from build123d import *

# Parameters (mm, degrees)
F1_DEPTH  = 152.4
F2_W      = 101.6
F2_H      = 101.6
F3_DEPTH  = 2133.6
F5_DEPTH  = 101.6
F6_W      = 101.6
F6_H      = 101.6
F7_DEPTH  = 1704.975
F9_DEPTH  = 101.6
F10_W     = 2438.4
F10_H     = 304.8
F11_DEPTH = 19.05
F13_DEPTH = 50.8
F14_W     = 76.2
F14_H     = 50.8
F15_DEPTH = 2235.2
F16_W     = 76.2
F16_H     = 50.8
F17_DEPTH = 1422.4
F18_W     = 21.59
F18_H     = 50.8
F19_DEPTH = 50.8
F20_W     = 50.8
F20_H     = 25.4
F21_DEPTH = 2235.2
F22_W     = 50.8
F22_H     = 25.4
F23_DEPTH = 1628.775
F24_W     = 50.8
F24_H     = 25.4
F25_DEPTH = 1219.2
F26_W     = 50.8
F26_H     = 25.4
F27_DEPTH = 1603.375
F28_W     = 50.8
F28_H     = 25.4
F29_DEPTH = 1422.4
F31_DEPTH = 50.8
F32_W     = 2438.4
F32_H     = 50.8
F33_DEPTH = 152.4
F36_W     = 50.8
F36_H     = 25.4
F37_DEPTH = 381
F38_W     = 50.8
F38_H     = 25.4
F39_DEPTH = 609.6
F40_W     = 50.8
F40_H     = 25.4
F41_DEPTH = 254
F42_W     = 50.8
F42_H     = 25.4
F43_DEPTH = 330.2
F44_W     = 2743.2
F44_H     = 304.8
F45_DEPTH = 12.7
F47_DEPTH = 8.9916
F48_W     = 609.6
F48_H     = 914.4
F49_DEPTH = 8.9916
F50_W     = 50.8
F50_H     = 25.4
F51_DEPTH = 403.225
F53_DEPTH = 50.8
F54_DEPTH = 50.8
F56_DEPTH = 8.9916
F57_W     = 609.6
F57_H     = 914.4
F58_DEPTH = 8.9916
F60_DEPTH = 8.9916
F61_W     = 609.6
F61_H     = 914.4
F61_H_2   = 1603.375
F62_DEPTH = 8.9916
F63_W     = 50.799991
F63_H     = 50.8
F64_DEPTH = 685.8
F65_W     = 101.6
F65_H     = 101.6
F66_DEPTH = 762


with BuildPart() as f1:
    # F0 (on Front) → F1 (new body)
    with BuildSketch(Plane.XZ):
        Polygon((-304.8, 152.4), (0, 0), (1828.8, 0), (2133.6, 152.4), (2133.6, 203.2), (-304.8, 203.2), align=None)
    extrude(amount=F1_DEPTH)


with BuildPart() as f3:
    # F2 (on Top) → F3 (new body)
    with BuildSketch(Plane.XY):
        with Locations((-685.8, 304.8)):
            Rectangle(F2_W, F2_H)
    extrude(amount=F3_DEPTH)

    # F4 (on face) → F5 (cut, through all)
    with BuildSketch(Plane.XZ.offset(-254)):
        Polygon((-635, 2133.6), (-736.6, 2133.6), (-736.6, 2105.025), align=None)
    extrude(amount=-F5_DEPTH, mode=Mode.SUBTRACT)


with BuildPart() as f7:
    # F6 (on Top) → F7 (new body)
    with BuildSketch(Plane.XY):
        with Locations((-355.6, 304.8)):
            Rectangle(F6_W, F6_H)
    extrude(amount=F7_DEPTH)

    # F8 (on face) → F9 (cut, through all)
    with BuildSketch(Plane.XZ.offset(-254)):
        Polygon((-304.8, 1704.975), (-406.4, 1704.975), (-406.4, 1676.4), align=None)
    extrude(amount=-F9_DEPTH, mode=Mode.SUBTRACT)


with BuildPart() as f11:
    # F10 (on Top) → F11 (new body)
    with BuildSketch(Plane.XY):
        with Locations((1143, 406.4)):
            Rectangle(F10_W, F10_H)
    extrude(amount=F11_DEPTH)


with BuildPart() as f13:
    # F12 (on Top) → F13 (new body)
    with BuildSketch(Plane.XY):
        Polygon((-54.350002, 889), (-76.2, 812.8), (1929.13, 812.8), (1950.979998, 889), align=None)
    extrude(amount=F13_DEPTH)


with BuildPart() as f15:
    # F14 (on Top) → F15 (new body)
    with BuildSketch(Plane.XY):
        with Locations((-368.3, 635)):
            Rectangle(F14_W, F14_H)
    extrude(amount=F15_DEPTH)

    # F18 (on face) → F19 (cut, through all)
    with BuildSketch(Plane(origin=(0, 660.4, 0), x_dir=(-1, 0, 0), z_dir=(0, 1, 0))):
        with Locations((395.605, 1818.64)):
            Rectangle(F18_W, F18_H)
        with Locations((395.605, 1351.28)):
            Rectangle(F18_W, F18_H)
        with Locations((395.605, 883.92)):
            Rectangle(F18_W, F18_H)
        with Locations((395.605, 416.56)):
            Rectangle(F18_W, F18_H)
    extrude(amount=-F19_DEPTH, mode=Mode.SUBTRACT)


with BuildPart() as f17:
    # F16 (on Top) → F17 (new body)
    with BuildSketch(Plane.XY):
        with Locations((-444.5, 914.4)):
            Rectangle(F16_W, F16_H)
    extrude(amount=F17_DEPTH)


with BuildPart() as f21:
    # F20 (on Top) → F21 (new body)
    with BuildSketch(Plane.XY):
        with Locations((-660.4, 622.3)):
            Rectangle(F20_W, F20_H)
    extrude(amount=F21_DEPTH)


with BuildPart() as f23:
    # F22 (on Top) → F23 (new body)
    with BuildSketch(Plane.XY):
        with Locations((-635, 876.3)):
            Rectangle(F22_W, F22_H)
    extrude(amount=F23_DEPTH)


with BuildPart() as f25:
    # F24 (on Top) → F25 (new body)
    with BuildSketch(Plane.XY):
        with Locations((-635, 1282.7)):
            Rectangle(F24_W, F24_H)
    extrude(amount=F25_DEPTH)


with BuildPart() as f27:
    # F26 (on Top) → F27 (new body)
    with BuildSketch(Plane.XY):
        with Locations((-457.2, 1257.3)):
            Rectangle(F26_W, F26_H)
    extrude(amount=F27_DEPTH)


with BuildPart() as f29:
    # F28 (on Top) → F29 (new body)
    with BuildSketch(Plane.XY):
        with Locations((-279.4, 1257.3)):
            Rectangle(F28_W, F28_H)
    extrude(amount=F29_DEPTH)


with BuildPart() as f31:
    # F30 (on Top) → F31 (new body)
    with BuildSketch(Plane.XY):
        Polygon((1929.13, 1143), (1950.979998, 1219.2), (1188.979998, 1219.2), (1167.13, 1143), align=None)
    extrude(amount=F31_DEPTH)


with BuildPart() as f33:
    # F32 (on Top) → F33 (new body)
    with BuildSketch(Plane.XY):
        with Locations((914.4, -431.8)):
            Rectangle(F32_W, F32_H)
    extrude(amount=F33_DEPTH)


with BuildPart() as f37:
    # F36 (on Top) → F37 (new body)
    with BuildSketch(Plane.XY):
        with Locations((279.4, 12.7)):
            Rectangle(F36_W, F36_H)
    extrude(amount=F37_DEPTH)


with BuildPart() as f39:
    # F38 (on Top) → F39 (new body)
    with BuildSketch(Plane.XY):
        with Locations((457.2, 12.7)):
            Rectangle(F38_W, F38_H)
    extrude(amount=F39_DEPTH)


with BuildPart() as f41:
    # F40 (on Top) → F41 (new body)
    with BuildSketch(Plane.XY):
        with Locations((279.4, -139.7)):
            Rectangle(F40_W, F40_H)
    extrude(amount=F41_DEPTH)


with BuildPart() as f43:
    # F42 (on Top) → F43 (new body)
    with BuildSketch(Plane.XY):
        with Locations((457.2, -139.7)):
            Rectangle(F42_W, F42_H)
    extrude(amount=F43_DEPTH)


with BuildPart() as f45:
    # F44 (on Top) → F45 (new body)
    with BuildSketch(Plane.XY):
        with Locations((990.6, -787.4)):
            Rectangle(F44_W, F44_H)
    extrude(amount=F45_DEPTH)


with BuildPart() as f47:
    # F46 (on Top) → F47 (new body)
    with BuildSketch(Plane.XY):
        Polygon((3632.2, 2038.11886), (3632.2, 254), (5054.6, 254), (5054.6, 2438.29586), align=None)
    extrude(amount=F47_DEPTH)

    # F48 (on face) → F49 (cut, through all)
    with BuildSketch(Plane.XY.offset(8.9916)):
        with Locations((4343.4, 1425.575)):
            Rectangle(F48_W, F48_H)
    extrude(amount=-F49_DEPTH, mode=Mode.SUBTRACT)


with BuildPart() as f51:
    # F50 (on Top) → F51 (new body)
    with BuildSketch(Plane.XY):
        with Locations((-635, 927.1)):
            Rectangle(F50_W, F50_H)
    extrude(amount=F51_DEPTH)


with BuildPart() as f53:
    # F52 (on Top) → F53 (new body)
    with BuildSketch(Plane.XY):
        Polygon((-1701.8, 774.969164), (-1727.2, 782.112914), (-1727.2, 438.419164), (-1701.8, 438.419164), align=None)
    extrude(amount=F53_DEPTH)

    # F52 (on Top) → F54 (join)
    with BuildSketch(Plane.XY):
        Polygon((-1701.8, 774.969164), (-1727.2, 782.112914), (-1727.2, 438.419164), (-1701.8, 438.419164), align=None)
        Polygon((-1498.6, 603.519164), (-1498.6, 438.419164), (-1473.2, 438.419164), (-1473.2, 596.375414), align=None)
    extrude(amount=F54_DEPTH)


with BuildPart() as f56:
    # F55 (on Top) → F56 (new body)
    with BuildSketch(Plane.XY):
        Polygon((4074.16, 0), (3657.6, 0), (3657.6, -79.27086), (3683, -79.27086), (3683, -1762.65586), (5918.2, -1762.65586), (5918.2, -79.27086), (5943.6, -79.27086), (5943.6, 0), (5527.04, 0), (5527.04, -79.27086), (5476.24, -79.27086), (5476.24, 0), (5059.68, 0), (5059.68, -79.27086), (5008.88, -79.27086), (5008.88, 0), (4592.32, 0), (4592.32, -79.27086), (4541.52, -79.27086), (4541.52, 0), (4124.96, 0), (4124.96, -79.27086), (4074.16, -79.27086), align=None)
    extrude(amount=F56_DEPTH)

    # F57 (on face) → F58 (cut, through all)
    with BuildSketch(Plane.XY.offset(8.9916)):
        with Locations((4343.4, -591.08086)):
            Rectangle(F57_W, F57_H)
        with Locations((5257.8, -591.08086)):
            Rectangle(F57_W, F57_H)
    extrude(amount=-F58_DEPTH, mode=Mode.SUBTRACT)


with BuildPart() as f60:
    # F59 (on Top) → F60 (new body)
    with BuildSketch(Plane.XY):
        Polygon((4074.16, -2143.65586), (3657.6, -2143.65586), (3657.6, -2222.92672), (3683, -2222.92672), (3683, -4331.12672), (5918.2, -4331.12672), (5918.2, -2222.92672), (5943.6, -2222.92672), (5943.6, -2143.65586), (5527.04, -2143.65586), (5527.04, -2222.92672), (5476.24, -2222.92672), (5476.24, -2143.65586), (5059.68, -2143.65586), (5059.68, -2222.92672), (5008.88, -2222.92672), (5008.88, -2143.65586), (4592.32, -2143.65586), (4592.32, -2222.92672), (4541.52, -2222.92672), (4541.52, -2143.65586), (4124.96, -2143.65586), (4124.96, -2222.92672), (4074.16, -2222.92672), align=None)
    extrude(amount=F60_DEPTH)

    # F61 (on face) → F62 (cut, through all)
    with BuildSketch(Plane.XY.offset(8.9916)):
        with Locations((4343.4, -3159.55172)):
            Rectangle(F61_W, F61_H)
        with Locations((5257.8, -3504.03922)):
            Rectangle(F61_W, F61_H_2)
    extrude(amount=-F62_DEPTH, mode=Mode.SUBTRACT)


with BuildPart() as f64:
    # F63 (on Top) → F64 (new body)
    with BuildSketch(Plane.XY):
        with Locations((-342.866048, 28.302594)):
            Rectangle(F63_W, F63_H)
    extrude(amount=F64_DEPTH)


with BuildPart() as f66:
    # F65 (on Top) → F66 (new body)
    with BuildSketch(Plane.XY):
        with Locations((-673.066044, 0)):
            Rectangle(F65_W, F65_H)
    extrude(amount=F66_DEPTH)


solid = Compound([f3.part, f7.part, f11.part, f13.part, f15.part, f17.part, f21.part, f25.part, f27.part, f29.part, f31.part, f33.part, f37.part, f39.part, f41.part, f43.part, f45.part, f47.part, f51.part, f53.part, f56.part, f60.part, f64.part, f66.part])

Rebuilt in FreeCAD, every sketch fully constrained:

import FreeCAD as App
import Part
import Sketcher
from FreeCAD import Vector
Q = App.Units.Quantity


def add_polygon(sketch, points):
    """Adds a closed chain of lines whose ends are joined by coincident constraints."""
    first, n = sketch.GeometryCount, len(points)
    for a, b in zip(points, points[1:] + points[:1]):
        sketch.addGeometry(Part.LineSegment(App.Vector(*a, 0), App.Vector(*b, 0)), False)
    for i in range(n):
        sketch.addConstraint(Sketcher.Constraint("Coincident", first + i, 2, first + (i + 1) % n, 1))

doc = App.newDocument("Part")
params = doc.addObject("Spreadsheet::Sheet", "Params")
for row, (alias, value) in enumerate([
    ("sketch1_width", "72 in"),
    ("sketch1_width2", "96 in"),
    ("sketch1_height", "2 in"),
    ("pad1_length", "6 in"),
    ("sketch2_width", "4 in"),
    ("pad2_length", "84 in"),
    ("sketch3_width", "4 in"),
    ("sketch3_height", "1.125 in"),
    ("sketch4_width", "4 in"),
    ("pad3_length", "67.125 in"),
    ("sketch5_width", "4 in"),
    ("sketch5_height", "1.125 in"),
    ("sketch6_width", "96 in"),
    ("sketch6_height", "12 in"),
    ("pad4_length", "0.75 in"),
    ("sketch7_width", "78.95 in"),
    ("pad5_length", "2 in"),
    ("sketch8_width", "3 in"),
    ("sketch8_height", "2 in"),
    ("pad6_length", "88 in"),
    ("sketch9_height", "2 in"),
    ("sketch9_width", "0.85 in"),
    ("sketch10_width", "3 in"),
    ("sketch10_height", "2 in"),
    ("pad7_length", "56 in"),
    ("sketch11_width", "2 in"),
    ("sketch11_height", "1 in"),
    ("pad8_length", "88 in"),
    ("sketch12_width", "2 in"),
    ("sketch12_height", "1 in"),
    ("pad9_length", "64.125 in"),
    ("sketch13_width", "2 in"),
    ("sketch13_height", "1 in"),
    ("pad10_length", "48 in"),
    ("sketch14_width", "2 in"),
    ("sketch14_height", "1 in"),
    ("pad11_length", "63.125 in"),
    ("sketch15_width", "2 in"),
    ("sketch15_height", "1 in"),
    ("pad12_length", "56 in"),
    ("sketch16_width", "30 in"),
    ("pad13_length", "2 in"),
    ("sketch17_width", "96 in"),
    ("sketch17_height", "2 in"),
    ("pad14_length", "6 in"),
    ("sketch18_width", "2 in"),
    ("sketch18_height", "1 in"),
    ("pad15_length", "15 in"),
    ("sketch19_width", "2 in"),
    ("sketch19_height", "1 in"),
    ("pad16_length", "24 in"),
    ("sketch20_width", "2 in"),
    ("sketch20_height", "1 in"),
    ("pad17_length", "10 in"),
    ("sketch21_width", "2 in"),
    ("sketch21_height", "1 in"),
    ("pad18_length", "13 in"),
    ("sketch22_width", "108 in"),
    ("sketch22_height", "12 in"),
    ("pad19_length", "0.5 in"),
    ("sketch23_width", "56 in"),
    ("pad20_length", "0.354 in"),
    ("sketch24_width", "24 in"),
    ("sketch24_height", "36 in"),
    ("sketch25_width", "2 in"),
    ("sketch25_height", "1 in"),
    ("pad21_length", "15.875 in"),
    ("sketch26_width", "1 in"),
    ("sketch26_height", "13.25 in"),
    ("sketch26_height2", "13.53125 in"),
    ("pad22_length", "2 in"),
    ("sketch27_width", "1 in"),
    ("sketch27_height", "6.5 in"),
    ("sketch27_height2", "13.25 in"),
    ("sketch27_height3", "13.53125 in"),
    ("pad23_length", "2 in"),
    ("sketch28_width", "1 in"),
    ("sketch28_width2", "88 in"),
    ("sketch28_width3", "2 in"),
    ("sketch28_height", "66.275 in"),
    ("pad24_length", "0.354 in"),
    ("sketch29_width", "24 in"),
    ("sketch29_height", "36 in"),
    ("sketch30_width", "1 in"),
    ("sketch30_width2", "88 in"),
    ("sketch30_width3", "2 in"),
    ("sketch30_height", "83 in"),
    ("pad25_length", "0.354 in"),
    ("sketch31_width", "24 in"),
    ("sketch31_height", "36 in"),
    ("sketch31_height2", "63.125 in"),
    ("sketch32_height", "2 in"),
    ("pad26_length", "27 in"),
    ("sketch33_width", "4 in"),
    ("pad27_length", "30 in"),
], start=1):
    params.set(f"A{row}", alias)
    params.set(f"B{row}", "=" + value)
    params.setAlias(f"B{row}", alias)

body = doc.addObject("PartDesign::Body", "Body")

# Sketch on XZ plane
sketch1 = doc.addObject("Sketcher::SketchObject", "Sketch")
body.addObject(sketch1)
sketch1.AttachmentSupport = (doc.XZ_Plane, [""])
sketch1.MapMode = "FlatFace"
add_polygon(sketch1, [(-304.8, 152.4), (0, 0), (1828.8, 0), (2133.6, 152.4), (2133.6, 203.2), (-304.8, 203.2)])  # lines 0-5
sketch1.addConstraint([
    Sketcher.Constraint("Horizontal", 1),
    Sketcher.Constraint("Vertical", 3),
    Sketcher.Constraint("Horizontal", 4),
    Sketcher.Constraint("Vertical", 5),
    Sketcher.Constraint("Coincident", 0, 2, -1, 1),
    Sketcher.Constraint("Horizontal", 2, 2, 5, 2),
    Sketcher.Constraint("Equal", 0, 2),
    Sketcher.Constraint("DistanceX", 1, 1, 1, 2, Q("72 in")),
    Sketcher.Constraint("DistanceX", 4, 2, 4, 1, Q("96 in")),
    Sketcher.Constraint("DistanceY", 3, 1, 3, 2, Q("2 in")),
    Sketcher.Constraint("DistanceY", -1, 1, 2, 2, Q("6 in")),
])
sketch1.setExpression("Constraints[13]", "Params.sketch1_width")
sketch1.setExpression("Constraints[14]", "Params.sketch1_width2")
sketch1.setExpression("Constraints[15]", "Params.sketch1_height")
pad1 = doc.addObject("PartDesign::Pad", "Pad")
body.addObject(pad1)
pad1.Profile = sketch1
pad1.setExpression("Length", "Params.pad1_length")
body2 = doc.addObject("PartDesign::Body", "Body001")

# Sketch on XY plane
sketch2 = doc.addObject("Sketcher::SketchObject", "Sketch001")
body2.addObject(sketch2)
sketch2.AttachmentSupport = (doc.getObject("XY_Plane001"), [""])
sketch2.MapMode = "FlatFace"
add_polygon(sketch2, [(-736.6, 355.6), (-736.6, 254), (-635, 254), (-635, 355.6)])  # lines 0-3
sketch2.addConstraint([
    Sketcher.Constraint("Vertical", 0),
    Sketcher.Constraint("Horizontal", 1),
    Sketcher.Constraint("Vertical", 2),
    Sketcher.Constraint("Horizontal", 3),
    Sketcher.Constraint("Equal", 3, 0),
    Sketcher.Constraint("DistanceX", 1, 1, 1, 2, Q("4 in")),
    Sketcher.Constraint("DistanceX", 0, 2, -1, 1, Q("29 in")),
    Sketcher.Constraint("DistanceY", -1, 1, 0, 2, Q("10 in")),
])
sketch2.setExpression("Constraints[9]", "Params.sketch2_width")
pad2 = doc.addObject("PartDesign::Pad", "Pad001")
body2.addObject(pad2)
pad2.Profile = sketch2
pad2.setExpression("Length", "Params.pad2_length")

# Sketch on XZ plane
sketch3 = doc.addObject("Sketcher::SketchObject", "Sketch002")
body2.addObject(sketch3)
sketch3.AttachmentSupport = (doc.getObject("XZ_Plane001"), [""])
sketch3.MapMode = "FlatFace"
sketch3.AttachmentOffset = App.Placement(Vector(0, 0, -10 * 25.4), App.Rotation())
add_polygon(sketch3, [(-635, 2133.6), (-736.6, 2133.6), (-736.6, 2105.025)])  # lines 0-2
sketch3.addConstraint([
    Sketcher.Constraint("Horizontal", 0),
    Sketcher.Constraint("Vertical", 1),
    Sketcher.Constraint("DistanceX", 0, 2, 0, 1, Q("4 in")),
    Sketcher.Constraint("DistanceX", 0, 2, -1, 1, Q("29 in")),
    Sketcher.Constraint("DistanceY", -1, 1, 0, 2, Q("84 in")),
    Sketcher.Constraint("DistanceY", 1, 2, 1, 1, Q("1.125 in")),
])
sketch3.setExpression("Constraints[5]", "Params.sketch3_width")
sketch3.setExpression("Constraints[8]", "Params.sketch3_height")
pocket1 = doc.addObject("PartDesign::Pocket", "Pocket")
body2.addObject(pocket1)
pocket1.Profile = sketch3
pocket1.Type = "ThroughAll"
body3 = doc.addObject("PartDesign::Body", "Body002")

# Sketch on XY plane
sketch4 = doc.addObject("Sketcher::SketchObject", "Sketch003")
body3.addObject(sketch4)
sketch4.AttachmentSupport = (doc.getObject("XY_Plane002"), [""])
sketch4.MapMode = "FlatFace"
add_polygon(sketch4, [(-406.4, 355.6), (-406.4, 254), (-304.8, 254), (-304.8, 355.6)])  # lines 0-3
sketch4.addConstraint([
    Sketcher.Constraint("Vertical", 0),
    Sketcher.Constraint("Horizontal", 1),
    Sketcher.Constraint("Vertical", 2),
    Sketcher.Constraint("Horizontal", 3),
    Sketcher.Constraint("Equal", 3, 0),
    Sketcher.Constraint("DistanceX", 1, 1, 1, 2, Q("4 in")),
    Sketcher.Constraint("DistanceX", 0, 2, -1, 1, Q("16 in")),
    Sketcher.Constraint("DistanceY", -1, 1, 0, 2, Q("10 in")),
])
sketch4.setExpression("Constraints[9]", "Params.sketch4_width")
pad3 = doc.addObject("PartDesign::Pad", "Pad002")
body3.addObject(pad3)
pad3.Profile = sketch4
pad3.setExpression("Length", "Params.pad3_length")

# Sketch on XZ plane
sketch5 = doc.addObject("Sketcher::SketchObject", "Sketch004")
body3.addObject(sketch5)
sketch5.AttachmentSupport = (doc.getObject("XZ_Plane002"), [""])
sketch5.MapMode = "FlatFace"
sketch5.AttachmentOffset = App.Placement(Vector(0, 0, -10 * 25.4), App.Rotation())
add_polygon(sketch5, [(-304.8, 1704.975), (-406.4, 1704.975), (-406.4, 1676.4)])  # lines 0-2
sketch5.addConstraint([
    Sketcher.Constraint("Horizontal", 0),
    Sketcher.Constraint("Vertical", 1),
    Sketcher.Constraint("DistanceX", 0, 2, 0, 1, Q("4 in")),
    Sketcher.Constraint("DistanceX", 0, 2, -1, 1, Q("16 in")),
    Sketcher.Constraint("DistanceY", -1, 1, 1, 2, Q("66 in")),
    Sketcher.Constraint("DistanceY", 1, 2, 1, 1, Q("1.125 in")),
])
sketch5.setExpression("Constraints[5]", "Params.sketch5_width")
sketch5.setExpression("Constraints[8]", "Params.sketch5_height")
pocket2 = doc.addObject("PartDesign::Pocket", "Pocket001")
body3.addObject(pocket2)
pocket2.Profile = sketch5
pocket2.Type = "ThroughAll"
body4 = doc.addObject("PartDesign::Body", "Body003")

# Sketch on XY plane
sketch6 = doc.addObject("Sketcher::SketchObject", "Sketch005")
body4.addObject(sketch6)
sketch6.AttachmentSupport = (doc.getObject("XY_Plane003"), [""])
sketch6.MapMode = "FlatFace"
add_polygon(sketch6, [(-76.2, 558.8), (-76.2, 254), (2362.2, 254), (2362.2, 558.8)])  # lines 0-3
sketch6.addConstraint([
    Sketcher.Constraint("Vertical", 0),
    Sketcher.Constraint("Horizontal", 1),
    Sketcher.Constraint("Vertical", 2),
    Sketcher.Constraint("Horizontal", 3),
    Sketcher.Constraint("DistanceX", 1, 1, 1, 2, Q("96 in")),
    Sketcher.Constraint("DistanceY", 0, 2, 0, 1, Q("12 in")),
    Sketcher.Constraint("DistanceX", 0, 2, -1, 1, Q("3 in")),
    Sketcher.Constraint("DistanceY", -1, 1, 0, 2, Q("10 in")),
])
sketch6.setExpression("Constraints[8]", "Params.sketch6_width")
sketch6.setExpression("Constraints[9]", "Params.sketch6_height")
pad4 = doc.addObject("PartDesign::Pad", "Pad003")
body4.addObject(pad4)
pad4.Profile = sketch6
pad4.setExpression("Length", "Params.pad4_length")
body5 = doc.addObject("PartDesign::Body", "Body004")

# Sketch on XY plane
sketch7 = doc.addObject("Sketcher::SketchObject", "Sketch006")
body5.addObject(sketch7)
sketch7.AttachmentSupport = (doc.getObject("XY_Plane004"), [""])
sketch7.MapMode = "FlatFace"
add_polygon(sketch7, [(-54.350002, 889), (-76.2, 812.8), (1929.13, 812.8), (1950.979998, 889)])  # lines 0-3
sketch7.addConstraint([
    Sketcher.Constraint("Horizontal", 1),
    Sketcher.Constraint("Horizontal", 3),
    Sketcher.Constraint("Parallel", 0, 2),
    Sketcher.Constraint("DistanceX", 0, 2, -1, 1, Q("3 in")),
    Sketcher.Constraint("DistanceY", -1, 1, 0, 2, Q("32 in")),
    Sketcher.Constraint("DistanceY", -1, 1, 2, 2, Q("35 in")),
    Sketcher.Constraint("Angle", 0, Q("-106 deg")),
    Sketcher.Constraint("DistanceX", 1, 1, 1, 2, Q("78.95 in")),
])
sketch7.setExpression("Constraints[11]", "Params.sketch7_width")
pad5 = doc.addObject("PartDesign::Pad", "Pad004")
body5.addObject(pad5)
pad5.Profile = sketch7
pad5.setExpression("Length", "Params.pad5_length")
body6 = doc.addObject("PartDesign::Body", "Body005")

# Sketch on XY plane
sketch8 = doc.addObject("Sketcher::SketchObject", "Sketch007")
body6.addObject(sketch8)
sketch8.AttachmentSupport = (doc.getObject("XY_Plane005"), [""])
sketch8.MapMode = "FlatFace"
add_polygon(sketch8, [(-406.4, 660.4), (-406.4, 609.6), (-330.2, 609.6), (-330.2, 660.4)])  # lines 0-3
sketch8.addConstraint([
    Sketcher.Constraint("Vertical", 0),
    Sketcher.Constraint("Horizontal", 1),
    Sketcher.Constraint("Vertical", 2),
    Sketcher.Constraint("Horizontal", 3),
    Sketcher.Constraint("DistanceX", 1, 1, 1, 2, Q("3 in")),
    Sketcher.Constraint("DistanceY", 0, 2, 0, 1, Q("2 in")),
    Sketcher.Constraint("DistanceX", 0, 2, -1, 1, Q("16 in")),
    Sketcher.Constraint("DistanceY", -1, 1, 0, 2, Q("24 in")),
])
sketch8.setExpression("Constraints[8]", "Params.sketch8_width")
sketch8.setExpression("Constraints[9]", "Params.sketch8_height")
pad6 = doc.addObject("PartDesign::Pad", "Pad005")
body6.addObject(pad6)
pad6.Profile = sketch8
pad6.setExpression("Length", "Params.pad6_length")

# Sketch on XZ plane
sketch9 = doc.addObject("Sketcher::SketchObject", "Sketch008")
body6.addObject(sketch9)
sketch9.AttachmentSupport = (doc.getObject("XZ_Plane005"), [""])
sketch9.MapMode = "FlatFace"
sketch9.AttachmentOffset = App.Placement(Vector(0, 0, -26 * 25.4), App.Rotation())
add_polygon(sketch9, [(-384.81, 1844.04), (-384.81, 1793.24), (-406.4, 1793.24), (-406.4, 1844.04)])  # lines 0-3
add_polygon(sketch9, [(-384.81, 1376.68), (-384.81, 1325.88), (-406.4, 1325.88), (-406.4, 1376.68)])  # lines 4-7
add_polygon(sketch9, [(-384.81, 909.32), (-384.81, 858.52), (-406.4, 858.52), (-406.4, 909.32)])  # lines 8-11
add_polygon(sketch9, [(-384.81, 441.96), (-384.81, 391.16), (-406.4, 391.16), (-406.4, 441.96)])  # lines 12-15
sketch9.addConstraint([
    Sketcher.Constraint("Vertical", 0),
    Sketcher.Constraint("Horizontal", 1),
    Sketcher.Constraint("Vertical", 2),
    Sketcher.Constraint("Horizontal", 3),
    Sketcher.Constraint("Vertical", 4),
    Sketcher.Constraint("Horizontal", 5),
    Sketcher.Constraint("Vertical", 6),
    Sketcher.Constraint("Horizontal", 7),
    Sketcher.Constraint("Vertical", 8),
    Sketcher.Constraint("Horizontal", 9),
    Sketcher.Constraint("Vertical", 10),
    Sketcher.Constraint("Horizontal", 11),
    Sketcher.Constraint("Vertical", 12),
    Sketcher.Constraint("Horizontal", 13),
    Sketcher.Constraint("Vertical", 14),
    Sketcher.Constraint("Horizontal", 15),
    Sketcher.Constraint("Vertical", 3, 2, 4, 2),
    Sketcher.Constraint("Vertical", 2, 2, 5, 2),
    Sketcher.Constraint("Vertical", 7, 2, 8, 2),
    Sketcher.Constraint("Vertical", 6, 2, 9, 2),
    Sketcher.Constraint("Vertical", 11, 2, 12, 2),
    Sketcher.Constraint("Vertical", 10, 2, 13, 2),
    Sketcher.Constraint("Equal", 2, 4),
    Sketcher.Constraint("Equal", 6, 8),
    Sketcher.Constraint("Equal", 10, 12),
    Sketcher.Constraint("DistanceY", 0, 2, 0, 1, Q("2 in")),
    Sketcher.Constraint("DistanceX", 1, 2, -1, 1, Q("16 in")),
    Sketcher.Constraint("DistanceX", 1, 2, 1, 1, Q("0.85 in")),
    Sketcher.Constraint("DistanceY", -1, 1, 0, 2, Q("70.6 in")),
    Sketcher.Constraint("DistanceY", -1, 1, 4, 2, Q("52.2 in")),
    Sketcher.Constraint("DistanceY", -1, 1, 8, 2, Q("33.8 in")),
    Sketcher.Constraint("DistanceY", -1, 1, 12, 2, Q("15.4 in")),
])
sketch9.setExpression("Constraints[41]", "Params.sketch9_height")
sketch9.setExpression("Constraints[43]", "Params.sketch9_width")
pocket3 = doc.addObject("PartDesign::Pocket", "Pocket002")
body6.addObject(pocket3)
pocket3.Profile = sketch9
pocket3.Type = "ThroughAll"
pocket3.Reversed = True
body7 = doc.addObject("PartDesign::Body", "Body006")

# Sketch on XY plane
sketch10 = doc.addObject("Sketcher::SketchObject", "Sketch009")
body7.addObject(sketch10)
sketch10.AttachmentSupport = (doc.getObject("XY_Plane006"), [""])
sketch10.MapMode = "FlatFace"
add_polygon(sketch10, [(-482.6, 939.8), (-482.6, 889), (-406.4, 889), (-406.4, 939.8)])  # lines 0-3
sketch10.addConstraint([
    Sketcher.Constraint("Vertical", 0),
    Sketcher.Constraint("Horizontal", 1),
    Sketcher.Constraint("Vertical", 2),
    Sketcher.Constraint("Horizontal", 3),
    Sketcher.Constraint("DistanceX", 1, 1, 1, 2, Q("3 in")),
    Sketcher.Constraint("DistanceY", 0, 2, 0, 1, Q("2 in")),
    Sketcher.Constraint("DistanceX", 0, 2, -1, 1, Q("19 in")),
    Sketcher.Constraint("DistanceY", -1, 1, 0, 2, Q("35 in")),
])
sketch10.setExpression("Constraints[8]", "Params.sketch10_width")
sketch10.setExpression("Constraints[9]", "Params.sketch10_height")
pad7 = doc.addObject("PartDesign::Pad", "Pad006")
body7.addObject(pad7)
pad7.Profile = sketch10
pad7.setExpression("Length", "Params.pad7_length")
body8 = doc.addObject("PartDesign::Body", "Body007")

# Sketch on XY plane
sketch11 = doc.addObject("Sketcher::SketchObject", "Sketch010")
body8.addObject(sketch11)
sketch11.AttachmentSupport = (doc.getObject("XY_Plane007"), [""])
sketch11.MapMode = "FlatFace"
add_polygon(sketch11, [(-685.8, 635), (-685.8, 609.6), (-635, 609.6), (-635, 635)])  # lines 0-3
sketch11.addConstraint([
    Sketcher.Constraint("Vertical", 0),
    Sketcher.Constraint("Horizontal", 1),
    Sketcher.Constraint("Vertical", 2),
    Sketcher.Constraint("Horizontal", 3),
    Sketcher.Constraint("DistanceX", 1, 1, 1, 2, Q("2 in")),
    Sketcher.Constraint("DistanceY", 0, 2, 0, 1, Q("1 in")),
    Sketcher.Constraint("DistanceX", 0, 2, -1, 1, Q("27 in")),
    Sketcher.Constraint("DistanceY", -1, 1, 0, 2, Q("24 in")),
])
sketch11.setExpression("Constraints[8]", "Params.sketch11_width")
sketch11.setExpression("Constraints[9]", "Params.sketch11_height")
pad8 = doc.addObject("PartDesign::Pad", "Pad007")
body8.addObject(pad8)
pad8.Profile = sketch11
pad8.setExpression("Length", "Params.pad8_length")
body9 = doc.addObject("PartDesign::Body", "Body008")

# Sketch on XY plane
sketch12 = doc.addObject("Sketcher::SketchObject", "Sketch011")
body9.addObject(sketch12)
sketch12.AttachmentSupport = (doc.getObject("XY_Plane008"), [""])
sketch12.MapMode = "FlatFace"
add_polygon(sketch12, [(-660.4, 889), (-660.4, 863.6), (-609.6, 863.6), (-609.6, 889)])  # lines 0-3
sketch12.addConstraint([
    Sketcher.Constraint("Vertical", 0),
    Sketcher.Constraint("Horizontal", 1),
    Sketcher.Constraint("Vertical", 2),
    Sketcher.Constraint("Horizontal", 3),
    Sketcher.Constraint("DistanceX", 1, 1, 1, 2, Q("2 in")),
    Sketcher.Constraint("DistanceY", 0, 2, 0, 1, Q("1 in")),
    Sketcher.Constraint("DistanceX", 0, 2, -1, 1, Q("26 in")),
    Sketcher.Constraint("DistanceY", -1, 1, 0, 2, Q("34 in")),
])
sketch12.setExpression("Constraints[8]", "Params.sketch12_width")
sketch12.setExpression("Constraints[9]", "Params.sketch12_height")
pad9 = doc.addObject("PartDesign::Pad", "Pad008")
body9.addObject(pad9)
pad9.Profile = sketch12
pad9.setExpression("Length", "Params.pad9_length")
body10 = doc.addObject("PartDesign::Body", "Body009")

# Sketch on XY plane
sketch13 = doc.addObject("Sketcher::SketchObject", "Sketch012")
body10.addObject(sketch13)
sketch13.AttachmentSupport = (doc.getObject("XY_Plane009"), [""])
sketch13.MapMode = "FlatFace"
add_polygon(sketch13, [(-660.4, 1295.4), (-660.4, 1270), (-609.6, 1270), (-609.6, 1295.4)])  # lines 0-3
sketch13.addConstraint([
    Sketcher.Constraint("Vertical", 0),
    Sketcher.Constraint("Horizontal", 1),
    Sketcher.Constraint("Vertical", 2),
    Sketcher.Constraint("Horizontal", 3),
    Sketcher.Constraint("DistanceX", 1, 1, 1, 2, Q("2 in")),
    Sketcher.Constraint("DistanceY", 0, 2, 0, 1, Q("1 in")),
    Sketcher.Constraint("DistanceX", 0, 2, -1, 1, Q("26 in")),
    Sketcher.Constraint("DistanceY", -1, 1, 0, 2, Q("50 in")),
])
sketch13.setExpression("Constraints[8]", "Params.sketch13_width")
sketch13.setExpression("Constraints[9]", "Params.sketch13_height")
pad10 = doc.addObject("PartDesign::Pad", "Pad009")
body10.addObject(pad10)
pad10.Profile = sketch13
pad10.setExpression("Length", "Params.pad10_length")
body11 = doc.addObject("PartDesign::Body", "Body010")

# Sketch on XY plane
sketch14 = doc.addObject("Sketcher::SketchObject", "Sketch013")
body11.addObject(sketch14)
sketch14.AttachmentSupport = (doc.getObject("XY_Plane010"), [""])
sketch14.MapMode = "FlatFace"
add_polygon(sketch14, [(-482.6, 1270), (-482.6, 1244.6), (-431.8, 1244.6), (-431.8, 1270)])  # lines 0-3
sketch14.addConstraint([
    Sketcher.Constraint("Vertical", 0),
    Sketcher.Constraint("Horizontal", 1),
    Sketcher.Constraint("Vertical", 2),
    Sketcher.Constraint("Horizontal", 3),
    Sketcher.Constraint("DistanceX", 1, 1, 1, 2, Q("2 in")),
    Sketcher.Constraint("DistanceY", 0, 2, 0, 1, Q("1 in")),
    Sketcher.Constraint("DistanceX", 0, 2, -1, 1, Q("19 in")),
    Sketcher.Constraint("DistanceY", -1, 1, 0, 2, Q("49 in")),
])
sketch14.setExpression("Constraints[8]", "Params.sketch14_width")
sketch14.setExpression("Constraints[9]", "Params.sketch14_height")
pad11 = doc.addObject("PartDesign::Pad", "Pad010")
body11.addObject(pad11)
pad11.Profile = sketch14
pad11.setExpression("Length", "Params.pad11_length")
body12 = doc.addObject("PartDesign::Body", "Body011")

# Sketch on XY plane
sketch15 = doc.addObject("Sketcher::SketchObject", "Sketch014")
body12.addObject(sketch15)
sketch15.AttachmentSupport = (doc.getObject("XY_Plane011"), [""])
sketch15.MapMode = "FlatFace"
add_polygon(sketch15, [(-304.8, 1270), (-304.8, 1244.6), (-254, 1244.6), (-254, 1270)])  # lines 0-3
sketch15.addConstraint([
    Sketcher.Constraint("Vertical", 0),
    Sketcher.Constraint("Horizontal", 1),
    Sketcher.Constraint("Vertical", 2),
    Sketcher.Constraint("Horizontal", 3),
    Sketcher.Constraint("DistanceX", 1, 1, 1, 2, Q("2 in")),
    Sketcher.Constraint("DistanceY", 0, 2, 0, 1, Q("1 in")),
    Sketcher.Constraint("DistanceX", 0, 2, -1, 1, Q("12 in")),
    Sketcher.Constraint("DistanceY", -1, 1, 0, 2, Q("49 in")),
])
sketch15.setExpression("Constraints[8]", "Params.sketch15_width")
sketch15.setExpression("Constraints[9]", "Params.sketch15_height")
pad12 = doc.addObject("PartDesign::Pad", "Pad011")
body12.addObject(pad12)
pad12.Profile = sketch15
pad12.setExpression("Length", "Params.pad12_length")
body13 = doc.addObject("PartDesign::Body", "Body012")

# Sketch on XY plane
sketch16 = doc.addObject("Sketcher::SketchObject", "Sketch015")
body13.addObject(sketch16)
sketch16.AttachmentSupport = (doc.getObject("XY_Plane012"), [""])
sketch16.MapMode = "FlatFace"
add_polygon(sketch16, [(1929.13, 1143), (1950.979998, 1219.2), (1188.979998, 1219.2), (1167.13, 1143)])  # lines 0-3
sketch16.addConstraint([
    Sketcher.Constraint("Horizontal", 1),
    Sketcher.Constraint("Horizontal", 3),
    Sketcher.Constraint("Parallel", 0, 2),
    Sketcher.Constraint("DistanceX", 1, 2, 1, 1, Q("30 in")),
    Sketcher.Constraint("DistanceY", -1, 1, 0, 2, Q("48 in")),
    Sketcher.Constraint("DistanceY", -1, 1, 2, 2, Q("45 in")),
    Sketcher.Constraint("Angle", 0, Q("74 deg")),
    Sketcher.Constraint("DistanceX", -1, 1, 2, 2, Q("45.95 in")),
])
sketch16.setExpression("Constraints[7]", "Params.sketch16_width")
pad13 = doc.addObject("PartDesign::Pad", "Pad012")
body13.addObject(pad13)
pad13.Profile = sketch16
pad13.setExpression("Length", "Params.pad13_length")
body14 = doc.addObject("PartDesign::Body", "Body013")

# Sketch on XY plane
sketch17 = doc.addObject("Sketcher::SketchObject", "Sketch016")
body14.addObject(sketch17)
sketch17.AttachmentSupport = (doc.getObject("XY_Plane013"), [""])
sketch17.MapMode = "FlatFace"
add_polygon(sketch17, [(-304.8, -406.4), (-304.8, -457.2), (2133.6, -457.2), (2133.6, -406.4)])  # lines 0-3
sketch17.addConstraint([
    Sketcher.Constraint("Vertical", 0),
    Sketcher.Constraint("Horizontal", 1),
    Sketcher.Constraint("Vertical", 2),
    Sketcher.Constraint("Horizontal", 3),
    Sketcher.Constraint("DistanceX", 1, 1, 1, 2, Q("96 in")),
    Sketcher.Constraint("DistanceY", 0, 2, 0, 1, Q("2 in")),
    Sketcher.Constraint("DistanceX", 0, 2, -1, 1, Q("12 in")),
    Sketcher.Constraint("DistanceY", 0, 2, -1, 1, Q("18 in")),
])
sketch17.setExpression("Constraints[8]", "Params.sketch17_width")
sketch17.setExpression("Constraints[9]", "Params.sketch17_height")
pad14 = doc.addObject("PartDesign::Pad", "Pad013")
body14.addObject(pad14)
pad14.Profile = sketch17
pad14.setExpression("Length", "Params.pad14_length")
body15 = doc.addObject("PartDesign::Body", "Body014")

# Sketch on XY plane
sketch18 = doc.addObject("Sketcher::SketchObject", "Sketch017")
body15.addObject(sketch18)
sketch18.AttachmentSupport = (doc.getObject("XY_Plane014"), [""])
sketch18.MapMode = "FlatFace"
add_polygon(sketch18, [(254, 25.4), (254, 0), (304.8, 0), (304.8, 25.4)])  # lines 0-3
sketch18.addConstraint([
    Sketcher.Constraint("Vertical", 0),
    Sketcher.Constraint("Horizontal", 1),
    Sketcher.Constraint("Vertical", 2),
    Sketcher.Constraint("Horizontal", 3),
    Sketcher.Constraint("PointOnObject", 0, 2, -1),
    Sketcher.Constraint("DistanceX", 1, 1, 1, 2, Q("2 in")),
    Sketcher.Constraint("DistanceY", 0, 2, 0, 1, Q("1 in")),
    Sketcher.Constraint("DistanceX", -1, 1, 0, 2, Q("10 in")),
])
sketch18.setExpression("Constraints[9]", "Params.sketch18_width")
sketch18.setExpression("Constraints[10]", "Params.sketch18_height")
pad15 = doc.addObject("PartDesign::Pad", "Pad014")
body15.addObject(pad15)
pad15.Profile = sketch18
pad15.setExpression("Length", "Params.pad15_length")
body16 = doc.addObject("PartDesign::Body", "Body015")

# Sketch on XY plane
sketch19 = doc.addObject("Sketcher::SketchObject", "Sketch018")
body16.addObject(sketch19)
sketch19.AttachmentSupport = (doc.getObject("XY_Plane015"), [""])
sketch19.MapMode = "FlatFace"
add_polygon(sketch19, [(431.8, 25.4), (431.8, 0), (482.6, 0), (482.6, 25.4)])  # lines 0-3
sketch19.addConstraint([
    Sketcher.Constraint("Vertical", 0),
    Sketcher.Constraint("Horizontal", 1),
    Sketcher.Constraint("Vertical", 2),
    Sketcher.Constraint("Horizontal", 3),
    Sketcher.Constraint("PointOnObject", 0, 2, -1),
    Sketcher.Constraint("DistanceX", 1, 1, 1, 2, Q("2 in")),
    Sketcher.Constraint("DistanceY", 0, 2, 0, 1, Q("1 in")),
    Sketcher.Constraint("DistanceX", -1, 1, 0, 2, Q("17 in")),
])
sketch19.setExpression("Constraints[9]", "Params.sketch19_width")
sketch19.setExpression("Constraints[10]", "Params.sketch19_height")
pad16 = doc.addObject("PartDesign::Pad", "Pad015")
body16.addObject(pad16)
pad16.Profile = sketch19
pad16.setExpression("Length", "Params.pad16_length")
body17 = doc.addObject("PartDesign::Body", "Body016")

# Sketch on XY plane
sketch20 = doc.addObject("Sketcher::SketchObject", "Sketch019")
body17.addObject(sketch20)
sketch20.AttachmentSupport = (doc.getObject("XY_Plane016"), [""])
sketch20.MapMode = "FlatFace"
add_polygon(sketch20, [(254, -127), (254, -152.4), (304.8, -152.4), (304.8, -127)])  # lines 0-3
sketch20.addConstraint([
    Sketcher.Constraint("Vertical", 0),
    Sketcher.Constraint("Horizontal", 1),
    Sketcher.Constraint("Vertical", 2),
    Sketcher.Constraint("Horizontal", 3),
    Sketcher.Constraint("DistanceX", 1, 1, 1, 2, Q("2 in")),
    Sketcher.Constraint("DistanceY", 0, 2, 0, 1, Q("1 in")),
    Sketcher.Constraint("DistanceX", -1, 1, 0, 2, Q("10 in")),
    Sketcher.Constraint("DistanceY", 0, 2, -1, 1, Q("6 in")),
])
sketch20.setExpression("Constraints[8]", "Params.sketch20_width")
sketch20.setExpression("Constraints[9]", "Params.sketch20_height")
pad17 = doc.addObject("PartDesign::Pad", "Pad016")
body17.addObject(pad17)
pad17.Profile = sketch20
pad17.setExpression("Length", "Params.pad17_length")
body18 = doc.addObject("PartDesign::Body", "Body017")

# Sketch on XY plane
sketch21 = doc.addObject("Sketcher::SketchObject", "Sketch020")
body18.addObject(sketch21)
sketch21.AttachmentSupport = (doc.getObject("XY_Plane017"), [""])
sketch21.MapMode = "FlatFace"
add_polygon(sketch21, [(431.8, -127), (431.8, -152.4), (482.6, -152.4), (482.6, -127)])  # lines 0-3
sketch21.addConstraint([
    Sketcher.Constraint("Vertical", 0),
    Sketcher.Constraint("Horizontal", 1),
    Sketcher.Constraint("Vertical", 2),
    Sketcher.Constraint("Horizontal", 3),
    Sketcher.Constraint("DistanceX", 1, 1, 1, 2, Q("2 in")),
    Sketcher.Constraint("DistanceY", 0, 2, 0, 1, Q("1 in")),
    Sketcher.Constraint("DistanceX", -1, 1, 0, 2, Q("17 in")),
    Sketcher.Constraint("DistanceY", 0, 2, -1, 1, Q("6 in")),
])
sketch21.setExpression("Constraints[8]", "Params.sketch21_width")
sketch21.setExpression("Constraints[9]", "Params.sketch21_height")
pad18 = doc.addObject("PartDesign::Pad", "Pad017")
body18.addObject(pad18)
pad18.Profile = sketch21
pad18.setExpression("Length", "Params.pad18_length")
body19 = doc.addObject("PartDesign::Body", "Body018")

# Sketch on XY plane
sketch22 = doc.addObject("Sketcher::SketchObject", "Sketch021")
body19.addObject(sketch22)
sketch22.AttachmentSupport = (doc.getObject("XY_Plane018"), [""])
sketch22.MapMode = "FlatFace"
add_polygon(sketch22, [(-381, -635), (-381, -939.8), (2362.2, -939.8), (2362.2, -635)])  # lines 0-3
sketch22.addConstraint([
    Sketcher.Constraint("Vertical", 0),
    Sketcher.Constraint("Horizontal", 1),
    Sketcher.Constraint("Vertical", 2),
    Sketcher.Constraint("Horizontal", 3),
    Sketcher.Constraint("DistanceX", 1, 1, 1, 2, Q("108 in")),
    Sketcher.Constraint("DistanceY", 0, 2, 0, 1, Q("12 in")),
    Sketcher.Constraint("DistanceX", 0, 2, -1, 1, Q("15 in")),
    Sketcher.Constraint("DistanceY", 0, 2, -1, 1, Q("37 in")),
])
sketch22.setExpression("Constraints[8]", "Params.sketch22_width")
sketch22.setExpression("Constraints[9]", "Params.sketch22_height")
pad19 = doc.addObject("PartDesign::Pad", "Pad018")
body19.addObject(pad19)
pad19.Profile = sketch22
pad19.setExpression("Length", "Params.pad19_length")
body20 = doc.addObject("PartDesign::Body", "Body019")

# Sketch on XY plane
sketch23 = doc.addObject("Sketcher::SketchObject", "Sketch022")
body20.addObject(sketch23)
sketch23.AttachmentSupport = (doc.getObject("XY_Plane019"), [""])
sketch23.MapMode = "FlatFace"
add_polygon(sketch23, [(3632.2, 2038.11886), (3632.2, 254), (5054.6, 254), (5054.6, 2438.29586)])  # lines 0-3
sketch23.addConstraint([
    Sketcher.Constraint("Vertical", 0),
    Sketcher.Constraint("Horizontal", 1),
    Sketcher.Constraint("Vertical", 2),
    Sketcher.Constraint("DistanceX", 1, 1, 1, 2, Q("56 in")),
    Sketcher.Constraint("DistanceX", -1, 1, 0, 2, Q("143 in")),
    Sketcher.Constraint("DistanceY", -1, 1, 0, 2, Q("10 in")),
    Sketcher.Constraint("DistanceY", 0, 2, 0, 1, Q("70.2409 in")),
    Sketcher.Constraint("DistanceY", 2, 1, 2, 2, Q("85.9959 in")),
])
sketch23.setExpression("Constraints[7]", "Params.sketch23_width")
pad20 = doc.addObject("PartDesign::Pad", "Pad019")
body20.addObject(pad20)
pad20.Profile = sketch23
pad20.setExpression("Length", "Params.pad20_length")

# Sketch on XY plane
sketch24 = doc.addObject("Sketcher::SketchObject", "Sketch023")
body20.addObject(sketch24)
sketch24.AttachmentSupport = (doc.getObject("XY_Plane019"), [""])
sketch24.MapMode = "FlatFace"
sketch24.AttachmentOffset = App.Placement(Vector(0, 0, 0.354 * 25.4), App.Rotation())
add_polygon(sketch24, [(4038.6, 1882.775), (4038.6, 968.375), (4648.2, 968.375), (4648.2, 1882.775)])  # lines 0-3
sketch24.addConstraint([
    Sketcher.Constraint("Vertical", 0),
    Sketcher.Constraint("Horizontal", 1),
    Sketcher.Constraint("Vertical", 2),
    Sketcher.Constraint("Horizontal", 3),
    Sketcher.Constraint("DistanceX", 1, 1, 1, 2, Q("24 in")),
    Sketcher.Constraint("DistanceY", 0, 2, 0, 1, Q("36 in")),
    Sketcher.Constraint("DistanceX", -1, 1, 0, 2, Q("159 in")),
    Sketcher.Constraint("DistanceY", -1, 1, 0, 2, Q("38.125 in")),
])
sketch24.setExpression("Constraints[8]", "Params.sketch24_width")
sketch24.setExpression("Constraints[9]", "Params.sketch24_height")
pocket4 = doc.addObject("PartDesign::Pocket", "Pocket003")
body20.addObject(pocket4)
pocket4.Profile = sketch24
pocket4.Type = "ThroughAll"
body21 = doc.addObject("PartDesign::Body", "Body020")

# Sketch on XY plane
sketch25 = doc.addObject("Sketcher::SketchObject", "Sketch024")
body21.addObject(sketch25)
sketch25.AttachmentSupport = (doc.getObject("XY_Plane020"), [""])
sketch25.MapMode = "FlatFace"
add_polygon(sketch25, [(-660.4, 939.8), (-660.4, 914.4), (-609.6, 914.4), (-609.6, 939.8)])  # lines 0-3
sketch25.addConstraint([
    Sketcher.Constraint("Vertical", 0),
    Sketcher.Constraint("Horizontal", 1),
    Sketcher.Constraint("Vertical", 2),
    Sketcher.Constraint("Horizontal", 3),
    Sketcher.Constraint("DistanceX", 1, 1, 1, 2, Q("2 in")),
    Sketcher.Constraint("DistanceY", 0, 2, 0, 1, Q("1 in")),
    Sketcher.Constraint("DistanceX", 0, 2, -1, 1, Q("26 in")),
    Sketcher.Constraint("DistanceY", -1, 1, 0, 2, Q("36 in")),
])
sketch25.setExpression("Constraints[8]", "Params.sketch25_width")
sketch25.setExpression("Constraints[9]", "Params.sketch25_height")
pad21 = doc.addObject("PartDesign::Pad", "Pad020")
body21.addObject(pad21)
pad21.Profile = sketch25
pad21.setExpression("Length", "Params.pad21_length")
body22 = doc.addObject("PartDesign::Body", "Body021")
body22.AllowCompound = True

# Sketch on XY plane
sketch26 = doc.addObject("Sketcher::SketchObject", "Sketch025")
body22.addObject(sketch26)
sketch26.AttachmentSupport = (doc.getObject("XY_Plane021"), [""])
sketch26.MapMode = "FlatFace"
add_polygon(sketch26, [(-1701.8, 774.969164), (-1727.2, 782.112914), (-1727.2, 438.419164), (-1701.8, 438.419164)])  # lines 0-3
sketch26.addConstraint([
    Sketcher.Constraint("Vertical", 1),
    Sketcher.Constraint("Horizontal", 2),
    Sketcher.Constraint("Vertical", 3),
    Sketcher.Constraint("DistanceX", 2, 1, 2, 2, Q("1 in")),
    Sketcher.Constraint("DistanceX", 0, 2, -1, 1, Q("68 in")),
    Sketcher.Constraint("DistanceY", 3, 1, 3, 2, Q("13.25 in")),
    Sketcher.Constraint("DistanceY", 1, 2, 1, 1, Q("13.53125 in")),
    Sketcher.Constraint("DistanceY", -1, 1, 0, 2, 782.112914),
])
sketch26.setExpression("Constraints[7]", "Params.sketch26_width")
sketch26.setExpression("Constraints[9]", "Params.sketch26_height")
sketch26.setExpression("Constraints[10]", "Params.sketch26_height2")
pad22 = doc.addObject("PartDesign::Pad", "Pad021")
body22.addObject(pad22)
pad22.Profile = sketch26
pad22.setExpression("Length", "Params.pad22_length")

# Sketch on XY plane
sketch27 = doc.addObject("Sketcher::SketchObject", "Sketch026")
body22.addObject(sketch27)
sketch27.AttachmentSupport = (doc.getObject("XY_Plane021"), [""])
sketch27.MapMode = "FlatFace"
add_polygon(sketch27, [(-1701.8, 774.969164), (-1727.2, 782.112914), (-1727.2, 438.419164), (-1701.8, 438.419164)])  # lines 0-3
add_polygon(sketch27, [(-1498.6, 603.519164), (-1498.6, 438.419164), (-1473.2, 438.419164), (-1473.2, 596.375414)])  # lines 4-7
sketch27.addConstraint([
    Sketcher.Constraint("Vertical", 1),
    Sketcher.Constraint("Horizontal", 2),
    Sketcher.Constraint("Vertical", 3),
    Sketcher.Constraint("Vertical", 4),
    Sketcher.Constraint("Horizontal", 5),
    Sketcher.Constraint("Vertical", 6),
    Sketcher.Constraint("Parallel", 0, 7),
    Sketcher.Constraint("Horizontal", 2, 2, 4, 2),
    Sketcher.Constraint("Equal", 2, 5),
    Sketcher.Constraint("DistanceX", 2, 1, 2, 2, Q("1 in")),
    Sketcher.Constraint("DistanceY", 4, 2, 4, 1, Q("6.5 in")),
    Sketcher.Constraint("DistanceX", 0, 2, -1, 1, Q("68 in")),
    Sketcher.Constraint("DistanceX", 4, 2, -1, 1, Q("59 in")),
    Sketcher.Constraint("DistanceY", 3, 1, 3, 2, Q("13.25 in")),
    Sketcher.Constraint("DistanceY", 1, 2, 1, 1, Q("13.53125 in")),
    Sketcher.Constraint("DistanceY", -1, 1, 0, 2, 782.112914),
])
sketch27.setExpression("Constraints[17]", "Params.sketch27_width")
sketch27.setExpression("Constraints[18]", "Params.sketch27_height")
sketch27.setExpression("Constraints[21]", "Params.sketch27_height2")
sketch27.setExpression("Constraints[22]", "Params.sketch27_height3")
pad23 = doc.addObject("PartDesign::Pad", "Pad022")
body22.addObject(pad23)
pad23.Profile = sketch27
pad23.setExpression("Length", "Params.pad23_length")
body23 = doc.addObject("PartDesign::Body", "Body022")

# Sketch on XY plane
sketch28 = doc.addObject("Sketcher::SketchObject", "Sketch027")
body23.addObject(sketch28)
sketch28.AttachmentSupport = (doc.getObject("XY_Plane022"), [""])
sketch28.MapMode = "FlatFace"
add_polygon(sketch28, [(4074.16, 0), (3657.6, 0), (3657.6, -79.27086), (3683, -79.27086), (3683, -1762.65586), (5918.2, -1762.65586), (5918.2, -79.27086), (5943.6, -79.27086), (5943.6, 0), (5527.04, 0), (5527.04, -79.27086), (5476.24, -79.27086), (5476.24, 0), (5059.68, 0), (5059.68, -79.27086), (5008.88, -79.27086), (5008.88, 0), (4592.32, 0), (4592.32, -79.27086), (4541.52, -79.27086), (4541.52, 0), (4124.96, 0), (4124.96, -79.27086), (4074.16, -79.27086)])  # lines 0-23
sketch28.addConstraint([
    Sketcher.Constraint("Horizontal", 0),
    Sketcher.Constraint("Vertical", 1),
    Sketcher.Constraint("Horizontal", 2),
    Sketcher.Constraint("Vertical", 3),
    Sketcher.Constraint("Horizontal", 4),
    Sketcher.Constraint("Vertical", 5),
    Sketcher.Constraint("Horizontal", 6),
    Sketcher.Constraint("Vertical", 7),
    Sketcher.Constraint("Horizontal", 8),
    Sketcher.Constraint("Vertical", 9),
    Sketcher.Constraint("Horizontal", 10),
    Sketcher.Constraint("Vertical", 11),
    Sketcher.Constraint("Horizontal", 12),
    Sketcher.Constraint("Vertical", 13),
    Sketcher.Constraint("Horizontal", 14),
    Sketcher.Constraint("Vertical", 15),
    Sketcher.Constraint("Horizontal", 16),
    Sketcher.Constraint("Vertical", 17),
    Sketcher.Constraint("Horizontal", 18),
    Sketcher.Constraint("Vertical", 19),
    Sketcher.Constraint("Horizontal", 20),
    Sketcher.Constraint("Vertical", 21),
    Sketcher.Constraint("Horizontal", 22),
    Sketcher.Constraint("Vertical", 23),
    Sketcher.Constraint("PointOnObject", 0, 2, -1),
    Sketcher.Constraint("PointOnObject", 7, 2, -1),
    Sketcher.Constraint("PointOnObject", 11, 2, -1),
    Sketcher.Constraint("PointOnObject", 15, 2, -1),
    Sketcher.Constraint("PointOnObject", 19, 2, -1),
    Sketcher.Constraint("Horizontal", 2, 2, 5, 2),
    Sketcher.Constraint("Horizontal", 6, 2, 9, 2),
    Sketcher.Constraint("Horizontal", 10, 2, 13, 2),
    Sketcher.Constraint("Horizontal", 14, 2, 17, 2),
    Sketcher.Constraint("Horizontal", 18, 2, 21, 2),
    Sketcher.Constraint("Equal", 2, 6),
    Sketcher.Constraint("Equal", 0, 8),
    Sketcher.Constraint("Equal", 8, 12),
    Sketcher.Constraint("Equal", 10, 14),
    Sketcher.Constraint("Equal", 12, 16),
    Sketcher.Constraint("Equal", 14, 18),
    Sketcher.Constraint("Equal", 16, 20),
    Sketcher.Constraint("Equal", 18, 22),
    Sketcher.Constraint("DistanceX", 2, 1, 2, 2, Q("1 in")),
    Sketcher.Constraint("DistanceX", 4, 1, 4, 2, Q("88 in")),
    Sketcher.Constraint("DistanceX", 10, 2, 10, 1, Q("2 in")),
    Sketcher.Constraint("DistanceX", -1, 1, 0, 2, Q("144 in")),
    Sketcher.Constraint("DistanceY", 3, 2, 3, 1, Q("66.275 in")),
    Sketcher.Constraint("DistanceY", 1, 2, 1, 1, Q("3.1209 in")),
])
sketch28.setExpression("Constraints[66]", "Params.sketch28_width")
sketch28.setExpression("Constraints[67]", "Params.sketch28_width2")
sketch28.setExpression("Constraints[68]", "Params.sketch28_width3")
sketch28.setExpression("Constraints[70]", "Params.sketch28_height")
pad24 = doc.addObject("PartDesign::Pad", "Pad023")
body23.addObject(pad24)
pad24.Profile = sketch28
pad24.setExpression("Length", "Params.pad24_length")

# Sketch on XY plane
sketch29 = doc.addObject("Sketcher::SketchObject", "Sketch028")
body23.addObject(sketch29)
sketch29.AttachmentSupport = (doc.getObject("XY_Plane022"), [""])
sketch29.MapMode = "FlatFace"
sketch29.AttachmentOffset = App.Placement(Vector(0, 0, 0.354 * 25.4), App.Rotation())
add_polygon(sketch29, [(4038.6, -133.88086), (4038.6, -1048.28086), (4648.2, -1048.28086), (4648.2, -133.88086)])  # lines 0-3
add_polygon(sketch29, [(4953, -133.88086), (4953, -1048.28086), (5562.6, -1048.28086), (5562.6, -133.88086)])  # lines 4-7
sketch29.addConstraint([
    Sketcher.Constraint("Vertical", 0),
    Sketcher.Constraint("Horizontal", 1),
    Sketcher.Constraint("Vertical", 2),
    Sketcher.Constraint("Horizontal", 3),
    Sketcher.Constraint("Vertical", 4),
    Sketcher.Constraint("Horizontal", 5),
    Sketcher.Constraint("Vertical", 6),
    Sketcher.Constraint("Horizontal", 7),
    Sketcher.Constraint("Horizontal", 1, 2, 4, 2),
    Sketcher.Constraint("Horizontal", 3, 2, 6, 2),
    Sketcher.Constraint("Equal", 3, 5),
    Sketcher.Constraint("DistanceX", 1, 1, 1, 2, Q("24 in")),
    Sketcher.Constraint("DistanceY", 0, 2, 0, 1, Q("36 in")),
    Sketcher.Constraint("DistanceX", -1, 1, 0, 2, Q("159 in")),
    Sketcher.Constraint("DistanceX", -1, 1, 4, 2, Q("195 in")),
    Sketcher.Constraint("DistanceY", 0, 2, -1, 1, Q("41.2709 in")),
])
sketch29.setExpression("Constraints[19]", "Params.sketch29_width")
sketch29.setExpression("Constraints[20]", "Params.sketch29_height")
pocket5 = doc.addObject("PartDesign::Pocket", "Pocket004")
body23.addObject(pocket5)
pocket5.Profile = sketch29
pocket5.Type = "ThroughAll"
body24 = doc.addObject("PartDesign::Body", "Body023")

# Sketch on XY plane
sketch30 = doc.addObject("Sketcher::SketchObject", "Sketch029")
body24.addObject(sketch30)
sketch30.AttachmentSupport = (doc.getObject("XY_Plane023"), [""])
sketch30.MapMode = "FlatFace"
add_polygon(sketch30, [(4074.16, -2143.65586), (3657.6, -2143.65586), (3657.6, -2222.92672), (3683, -2222.92672), (3683, -4331.12672), (5918.2, -4331.12672), (5918.2, -2222.92672), (5943.6, -2222.92672), (5943.6, -2143.65586), (5527.04, -2143.65586), (5527.04, -2222.92672), (5476.24, -2222.92672), (5476.24, -2143.65586), (5059.68, -2143.65586), (5059.68, -2222.92672), (5008.88, -2222.92672), (5008.88, -2143.65586), (4592.32, -2143.65586), (4592.32, -2222.92672), (4541.52, -2222.92672), (4541.52, -2143.65586), (4124.96, -2143.65586), (4124.96, -2222.92672), (4074.16, -2222.92672)])  # lines 0-23
sketch30.addConstraint([
    Sketcher.Constraint("Horizontal", 0),
    Sketcher.Constraint("Vertical", 1),
    Sketcher.Constraint("Horizontal", 2),
    Sketcher.Constraint("Vertical", 3),
    Sketcher.Constraint("Horizontal", 4),
    Sketcher.Constraint("Vertical", 5),
    Sketcher.Constraint("Horizontal", 6),
    Sketcher.Constraint("Vertical", 7),
    Sketcher.Constraint("Horizontal", 8),
    Sketcher.Constraint("Vertical", 9),
    Sketcher.Constraint("Horizontal", 10),
    Sketcher.Constraint("Vertical", 11),
    Sketcher.Constraint("Horizontal", 12),
    Sketcher.Constraint("Vertical", 13),
    Sketcher.Constraint("Horizontal", 14),
    Sketcher.Constraint("Vertical", 15),
    Sketcher.Constraint("Horizontal", 16),
    Sketcher.Constraint("Vertical", 17),
    Sketcher.Constraint("Horizontal", 18),
    Sketcher.Constraint("Vertical", 19),
    Sketcher.Constraint("Horizontal", 20),
    Sketcher.Constraint("Vertical", 21),
    Sketcher.Constraint("Horizontal", 22),
    Sketcher.Constraint("Vertical", 23),
    Sketcher.Constraint("Horizontal", 2, 2, 5, 2),
    Sketcher.Constraint("Horizontal", 0, 2, 7, 2),
    Sketcher.Constraint("Horizontal", 6, 2, 9, 2),
    Sketcher.Constraint("Horizontal", 8, 2, 11, 2),
    Sketcher.Constraint("Horizontal", 10, 2, 13, 2),
    Sketcher.Constraint("Horizontal", 12, 2, 15, 2),
    Sketcher.Constraint("Horizontal", 14, 2, 17, 2),
    Sketcher.Constraint("Horizontal", 16, 2, 19, 2),
    Sketcher.Constraint("Horizontal", 18, 2, 21, 2),
    Sketcher.Constraint("Equal", 2, 6),
    Sketcher.Constraint("Equal", 0, 8),
    Sketcher.Constraint("Equal", 8, 12),
    Sketcher.Constraint("Equal", 10, 14),
    Sketcher.Constraint("Equal", 12, 16),
    Sketcher.Constraint("Equal", 14, 18),
    Sketcher.Constraint("Equal", 16, 20),
    Sketcher.Constraint("Equal", 18, 22),
    Sketcher.Constraint("DistanceX", 2, 1, 2, 2, Q("1 in")),
    Sketcher.Constraint("DistanceX", 4, 1, 4, 2, Q("88 in")),
    Sketcher.Constraint("DistanceX", 10, 2, 10, 1, Q("2 in")),
    Sketcher.Constraint("DistanceY", 3, 2, 3, 1, Q("83 in")),
    Sketcher.Constraint("DistanceX", -1, 1, 0, 2, Q("144 in")),
    Sketcher.Constraint("DistanceY", 1, 2, 1, 1, Q("3.1209 in")),
    Sketcher.Constraint("DistanceY", 0, 2, -1, 1, Q("84.3959 in")),
])
sketch30.setExpression("Constraints[65]", "Params.sketch30_width")
sketch30.setExpression("Constraints[66]", "Params.sketch30_width2")
sketch30.setExpression("Constraints[67]", "Params.sketch30_width3")
sketch30.setExpression("Constraints[68]", "Params.sketch30_height")
pad25 = doc.addObject("PartDesign::Pad", "Pad024")
body24.addObject(pad25)
pad25.Profile = sketch30
pad25.setExpression("Length", "Params.pad25_length")

# Sketch on XY plane
sketch31 = doc.addObject("Sketcher::SketchObject", "Sketch030")
body24.addObject(sketch31)
sketch31.AttachmentSupport = (doc.getObject("XY_Plane023"), [""])
sketch31.MapMode = "FlatFace"
sketch31.AttachmentOffset = App.Placement(Vector(0, 0, 0.354 * 25.4), App.Rotation())
add_polygon(sketch31, [(4038.6, -2702.35172), (4038.6, -3616.75172), (4648.2, -3616.75172), (4648.2, -2702.35172)])  # lines 0-3
add_polygon(sketch31, [(4953, -2702.35172), (4953, -4305.72672), (5562.6, -4305.72672), (5562.6, -2702.35172)])  # lines 4-7
sketch31.addConstraint([
    Sketcher.Constraint("Vertical", 0),
    Sketcher.Constraint("Horizontal", 1),
    Sketcher.Constraint("Vertical", 2),
    Sketcher.Constraint("Horizontal", 3),
    Sketcher.Constraint("Vertical", 4),
    Sketcher.Constraint("Horizontal", 5),
    Sketcher.Constraint("Vertical", 6),
    Sketcher.Constraint("Horizontal", 7),
    Sketcher.Constraint("Horizontal", 3, 2, 6, 2),
    Sketcher.Constraint("Equal", 3, 5),
    Sketcher.Constraint("DistanceX", 1, 1, 1, 2, Q("24 in")),
    Sketcher.Constraint("DistanceY", 0, 2, 0, 1, Q("36 in")),
    Sketcher.Constraint("DistanceX", -1, 1, 0, 2, Q("159 in")),
    Sketcher.Constraint("DistanceX", -1, 1, 4, 2, Q("195 in")),
    Sketcher.Constraint("DistanceY", 4, 2, 4, 1, Q("63.125 in")),
    Sketcher.Constraint("DistanceY", 0, 2, -1, 1, Q("142.3918 in")),
])
sketch31.setExpression("Constraints[18]", "Params.sketch31_width")
sketch31.setExpression("Constraints[19]", "Params.sketch31_height")
sketch31.setExpression("Constraints[22]", "Params.sketch31_height2")
pocket6 = doc.addObject("PartDesign::Pocket", "Pocket005")
body24.addObject(pocket6)
pocket6.Profile = sketch31
pocket6.Type = "ThroughAll"
body25 = doc.addObject("PartDesign::Body", "Body024")

# Sketch on XY plane
sketch32 = doc.addObject("Sketcher::SketchObject", "Sketch031")
body25.addObject(sketch32)
sketch32.AttachmentSupport = (doc.getObject("XY_Plane024"), [""])
sketch32.MapMode = "FlatFace"
add_polygon(sketch32, [(-368.266044, 53.702594), (-368.266044, 2.902594), (-317.466052, 2.902594), (-317.466052, 53.702594)])  # lines 0-3
sketch32.addConstraint([
    Sketcher.Constraint("Vertical", 0),
    Sketcher.Constraint("Horizontal", 1),
    Sketcher.Constraint("Vertical", 2),
    Sketcher.Constraint("Horizontal", 3),
    Sketcher.Constraint("DistanceY", 0, 2, 0, 1, Q("2 in")),
    Sketcher.Constraint("DistanceX", 1, 1, 1, 2, 50.799991),
    Sketcher.Constraint("DistanceX", 0, 2, -1, 1, 368.266044),
    Sketcher.Constraint("DistanceY", -1, 1, 0, 2, 2.902594),
])
sketch32.setExpression("Constraints[8]", "Params.sketch32_height")
pad26 = doc.addObject("PartDesign::Pad", "Pad025")
body25.addObject(pad26)
pad26.Profile = sketch32
pad26.setExpression("Length", "Params.pad26_length")
body26 = doc.addObject("PartDesign::Body", "Body025")

# Sketch on XY plane
sketch33 = doc.addObject("Sketcher::SketchObject", "Sketch032")
body26.addObject(sketch33)
sketch33.AttachmentSupport = (doc.getObject("XY_Plane025"), [""])
sketch33.MapMode = "FlatFace"
add_polygon(sketch33, [(-723.866044, 50.8), (-723.866044, -50.8), (-622.266044, -50.8), (-622.266044, 50.8)])  # lines 0-3
sketch33.addConstraint([
    Sketcher.Constraint("Vertical", 0),
    Sketcher.Constraint("Horizontal", 1),
    Sketcher.Constraint("Vertical", 2),
    Sketcher.Constraint("Horizontal", 3),
    Sketcher.Constraint("Equal", 3, 0),
    Sketcher.Constraint("DistanceX", 1, 1, 1, 2, Q("4 in")),
    Sketcher.Constraint("DistanceY", 0, 2, -1, 1, Q("2 in")),
    Sketcher.Constraint("DistanceX", 0, 2, -1, 1, 723.866044),
])
sketch33.setExpression("Constraints[9]", "Params.sketch33_width")
pad27 = doc.addObject("PartDesign::Pad", "Pad026")
body26.addObject(pad27)
pad27.Profile = sketch33
pad27.setExpression("Length", "Params.pad27_length")

doc.recompute()
